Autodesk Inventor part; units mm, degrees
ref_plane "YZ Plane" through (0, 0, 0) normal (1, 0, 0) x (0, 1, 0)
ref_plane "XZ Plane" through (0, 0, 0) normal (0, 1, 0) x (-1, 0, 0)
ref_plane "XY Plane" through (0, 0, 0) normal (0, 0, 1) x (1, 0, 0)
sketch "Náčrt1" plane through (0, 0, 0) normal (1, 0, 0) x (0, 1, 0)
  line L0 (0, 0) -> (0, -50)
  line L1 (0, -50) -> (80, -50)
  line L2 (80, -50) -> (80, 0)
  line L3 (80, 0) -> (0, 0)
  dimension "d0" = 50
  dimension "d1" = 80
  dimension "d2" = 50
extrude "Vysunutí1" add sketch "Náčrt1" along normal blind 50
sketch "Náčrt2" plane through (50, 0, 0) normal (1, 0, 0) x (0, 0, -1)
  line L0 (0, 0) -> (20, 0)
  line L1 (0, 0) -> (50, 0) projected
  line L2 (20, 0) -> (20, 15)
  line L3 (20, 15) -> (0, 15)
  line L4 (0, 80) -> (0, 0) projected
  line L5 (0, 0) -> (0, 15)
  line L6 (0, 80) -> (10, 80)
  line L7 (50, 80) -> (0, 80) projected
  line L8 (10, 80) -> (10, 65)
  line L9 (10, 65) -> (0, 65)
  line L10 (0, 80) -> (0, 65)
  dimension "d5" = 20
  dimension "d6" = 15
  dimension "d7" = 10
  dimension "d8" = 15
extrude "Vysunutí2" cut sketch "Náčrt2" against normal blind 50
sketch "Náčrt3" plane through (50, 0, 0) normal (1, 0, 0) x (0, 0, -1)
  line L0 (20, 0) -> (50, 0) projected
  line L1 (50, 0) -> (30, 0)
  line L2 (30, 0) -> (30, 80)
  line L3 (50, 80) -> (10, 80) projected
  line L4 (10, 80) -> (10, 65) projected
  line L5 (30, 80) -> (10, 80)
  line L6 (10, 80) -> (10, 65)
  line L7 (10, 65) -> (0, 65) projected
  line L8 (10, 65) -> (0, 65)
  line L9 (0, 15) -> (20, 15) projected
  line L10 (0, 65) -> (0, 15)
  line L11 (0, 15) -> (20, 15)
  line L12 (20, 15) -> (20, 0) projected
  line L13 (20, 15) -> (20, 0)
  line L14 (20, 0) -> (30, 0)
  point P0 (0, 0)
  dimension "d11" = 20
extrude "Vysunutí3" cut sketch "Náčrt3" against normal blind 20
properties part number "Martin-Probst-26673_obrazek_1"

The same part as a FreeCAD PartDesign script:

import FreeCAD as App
import Part
import Sketcher

V = App.Vector
Q = App.Units.Quantity

doc = App.newDocument("Part")
params = doc.addObject("Spreadsheet::Sheet", "Params")
for row, (alias, value) in enumerate([
    ("sketch1_width", "80 mm"),
    ("sketch1_height", "50 mm"),
    ("pad1_length", "50 mm"),
    ("sketch2_width", "15 mm"),
    ("sketch2_height", "20 mm"),
    ("sketch2_height2", "10 mm"),
    ("pocket1_length", "50 mm"),
    ("sketch3_height", "20 mm"),
    ("sketch3_width", "15 mm"),
    ("sketch3_width2", "80 mm"),
    ("sketch3_height2", "10 mm"),
    ("pocket2_length", "20 mm"),
], start=1):
    params.set(f"A{row}", alias)
    params.set(f"B{row}", "=" + value)
    params.setAlias(f"B{row}", alias)

body = doc.addObject("PartDesign::Body", "Body")

# Sketch on YZ plane
sketch1 = body.newObject("Sketcher::SketchObject", "Sketch")
sketch1.AttachmentSupport = (doc.getObject("YZ_Plane"), [""])
sketch1.MapMode = "FlatFace"
sketch1.addGeometry(Part.LineSegment(V(80, 0, 0), V(0, 0, 0)), False)
sketch1.addGeometry(Part.LineSegment(V(0, 0, 0), V(0, -50, 0)), False)
sketch1.addGeometry(Part.LineSegment(V(0, -50, 0), V(80, -50, 0)), False)
sketch1.addGeometry(Part.LineSegment(V(80, -50, 0), V(80, 0, 0)), False)
sketch1.addConstraint(Sketcher.Constraint("Coincident", 0, 2, 1, 1))
sketch1.addConstraint(Sketcher.Constraint("Coincident", 1, 2, 2, 1))
sketch1.addConstraint(Sketcher.Constraint("Coincident", 2, 2, 3, 1))
sketch1.addConstraint(Sketcher.Constraint("Coincident", 3, 2, 0, 1))
sketch1.addConstraint(Sketcher.Constraint("Horizontal", 0))
sketch1.addConstraint(Sketcher.Constraint("Vertical", 1))
sketch1.addConstraint(Sketcher.Constraint("Horizontal", 2))
sketch1.addConstraint(Sketcher.Constraint("Vertical", 3))
sketch1.addConstraint(Sketcher.Constraint("Coincident", 0, 2, -1, 1))
sketch1.addConstraint(Sketcher.Constraint("DistanceX", 0, 2, 0, 1, Q("80 mm")))
sketch1.addConstraint(Sketcher.Constraint("DistanceY", 1, 2, 1, 1, Q("50 mm")))
sketch1.setExpression("Constraints[9]", "Params.sketch1_width")
sketch1.setExpression("Constraints[10]", "Params.sketch1_height")
pad1 = body.newObject("PartDesign::Pad", "Pad")
pad1.Profile = sketch1
pad1.setExpression("Length", "Params.pad1_length")

# Sketch on YZ plane
sketch2 = body.newObject("Sketcher::SketchObject", "Sketch001")
sketch2.AttachmentSupport = (doc.getObject("YZ_Plane"), [""])
sketch2.MapMode = "FlatFace"
sketch2.AttachmentOffset = App.Placement(V(0, 0, 50), App.Rotation())
sketch2.addGeometry(Part.LineSegment(V(15, 0, 0), V(0, 0, 0)), False)
sketch2.addGeometry(Part.LineSegment(V(0, 0, 0), V(0, -20, 0)), False)
sketch2.addGeometry(Part.LineSegment(V(0, -20, 0), V(15, -20, 0)), False)
sketch2.addGeometry(Part.LineSegment(V(15, -20, 0), V(15, 0, 0)), False)
sketch2.addGeometry(Part.LineSegment(V(80, 0, 0), V(65, 0, 0)), False)
sketch2.addGeometry(Part.LineSegment(V(65, 0, 0), V(65, -10, 0)), False)
sketch2.addGeometry(Part.LineSegment(V(65, -10, 0), V(80, -10, 0)), False)
sketch2.addGeometry(Part.LineSegment(V(80, -10, 0), V(80, 0, 0)), False)
sketch2.addConstraint(Sketcher.Constraint("Coincident", 0, 2, 1, 1))
sketch2.addConstraint(Sketcher.Constraint("Coincident", 1, 2, 2, 1))
sketch2.addConstraint(Sketcher.Constraint("Coincident", 2, 2, 3, 1))
sketch2.addConstraint(Sketcher.Constraint("Coincident", 3, 2, 0, 1))
sketch2.addConstraint(Sketcher.Constraint("Coincident", 4, 2, 5, 1))
sketch2.addConstraint(Sketcher.Constraint("Coincident", 5, 2, 6, 1))
sketch2.addConstraint(Sketcher.Constraint("Coincident", 6, 2, 7, 1))
sketch2.addConstraint(Sketcher.Constraint("Coincident", 7, 2, 4, 1))
sketch2.addConstraint(Sketcher.Constraint("Horizontal", 0))
sketch2.addConstraint(Sketcher.Constraint("Vertical", 1))
sketch2.addConstraint(Sketcher.Constraint("Horizontal", 2))
sketch2.addConstraint(Sketcher.Constraint("Vertical", 3))
sketch2.addConstraint(Sketcher.Constraint("Horizontal", 4))
sketch2.addConstraint(Sketcher.Constraint("Vertical", 5))
sketch2.addConstraint(Sketcher.Constraint("Horizontal", 6))
sketch2.addConstraint(Sketcher.Constraint("Vertical", 7))
sketch2.addConstraint(Sketcher.Constraint("Coincident", 0, 2, -1, 1))
sketch2.addConstraint(Sketcher.Constraint("PointOnObject", 4, 2, -1))
sketch2.addConstraint(Sketcher.Constraint("Equal", 2, 4))
sketch2.addConstraint(Sketcher.Constraint("DistanceX", 0, 2, 0, 1, Q("15 mm")))
sketch2.addConstraint(Sketcher.Constraint("DistanceY", 1, 2, 1, 1, Q("20 mm")))
sketch2.addConstraint(Sketcher.Constraint("DistanceY", 5, 2, 5, 1, Q("10 mm")))
sketch2.addConstraint(Sketcher.Constraint("DistanceX", -1, 1, 4, 2, Q("65 mm")))
sketch2.setExpression("Constraints[19]", "Params.sketch2_width")
sketch2.setExpression("Constraints[20]", "Params.sketch2_height")
sketch2.setExpression("Constraints[21]", "Params.sketch2_height2")
pocket1 = body.newObject("PartDesign::Pocket", "Pocket")
pocket1.Profile = sketch2
pocket1.setExpression("Length", "Params.pocket1_length")

# Sketch on YZ plane
sketch3 = body.newObject("Sketcher::SketchObject", "Sketch002")
sketch3.AttachmentSupport = (doc.getObject("YZ_Plane"), [""])
sketch3.MapMode = "FlatFace"
sketch3.AttachmentOffset = App.Placement(V(0, 0, 50), App.Rotation())
sketch3.addGeometry(Part.LineSegment(V(15, -20, 0), V(0, -20, 0)), False)
sketch3.addGeometry(Part.LineSegment(V(0, -20, 0), V(0, -30, 0)), False)
sketch3.addGeometry(Part.LineSegment(V(0, -30, 0), V(80, -30, 0)), False)
sketch3.addGeometry(Part.LineSegment(V(80, -30, 0), V(80, -10, 0)), False)
sketch3.addGeometry(Part.LineSegment(V(80, -10, 0), V(65, -10, 0)), False)
sketch3.addGeometry(Part.LineSegment(V(65, -10, 0), V(65, 0, 0)), False)
sketch3.addGeometry(Part.LineSegment(V(65, 0, 0), V(15, 0, 0)), False)
sketch3.addGeometry(Part.LineSegment(V(15, 0, 0), V(15, -20, 0)), False)
sketch3.addConstraint(Sketcher.Constraint("Coincident", 0, 2, 1, 1))
sketch3.addConstraint(Sketcher.Constraint("Coincident", 1, 2, 2, 1))
sketch3.addConstraint(Sketcher.Constraint("Coincident", 2, 2, 3, 1))
sketch3.addConstraint(Sketcher.Constraint("Coincident", 3, 2, 4, 1))
sketch3.addConstraint(Sketcher.Constraint("Coincident", 4, 2, 5, 1))
sketch3.addConstraint(Sketcher.Constraint("Coincident", 5, 2, 6, 1))
sketch3.addConstraint(Sketcher.Constraint("Coincident", 6, 2, 7, 1))
sketch3.addConstraint(Sketcher.Constraint("Coincident", 7, 2, 0, 1))
sketch3.addConstraint(Sketcher.Constraint("Horizontal", 0))
sketch3.addConstraint(Sketcher.Constraint("Vertical", 1))
sketch3.addConstraint(Sketcher.Constraint("Horizontal", 2))
sketch3.addConstraint(Sketcher.Constraint("Vertical", 3))
sketch3.addConstraint(Sketcher.Constraint("Horizontal", 4))
sketch3.addConstraint(Sketcher.Constraint("Vertical", 5))
sketch3.addConstraint(Sketcher.Constraint("Horizontal", 6))
sketch3.addConstraint(Sketcher.Constraint("Vertical", 7))
sketch3.addConstraint(Sketcher.Constraint("PointOnObject", 0, 2, -2))
sketch3.addConstraint(Sketcher.Constraint("PointOnObject", 5, 2, -1))
sketch3.addConstraint(Sketcher.Constraint("Equal", 0, 4))
sketch3.addConstraint(Sketcher.Constraint("Equal", 1, 5))
sketch3.addConstraint(Sketcher.Constraint("DistanceY", 3, 1, 3, 2, Q("20 mm")))
sketch3.addConstraint(Sketcher.Constraint("DistanceX", 0, 2, 0, 1, Q("15 mm")))
sketch3.addConstraint(Sketcher.Constraint("DistanceX", 2, 1, 2, 2, Q("80 mm")))
sketch3.addConstraint(Sketcher.Constraint("DistanceY", 1, 2, 1, 1, Q("10 mm")))
sketch3.setExpression("Constraints[20]", "Params.sketch3_height")
sketch3.setExpression("Constraints[21]", "Params.sketch3_width")
sketch3.setExpression("Constraints[22]", "Params.sketch3_width2")
sketch3.setExpression("Constraints[23]", "Params.sketch3_height2")
pocket2 = body.newObject("PartDesign::Pocket", "Pocket001")
pocket2.Profile = sketch3
pocket2.setExpression("Length", "Params.pocket2_length")

doc.recompute()
